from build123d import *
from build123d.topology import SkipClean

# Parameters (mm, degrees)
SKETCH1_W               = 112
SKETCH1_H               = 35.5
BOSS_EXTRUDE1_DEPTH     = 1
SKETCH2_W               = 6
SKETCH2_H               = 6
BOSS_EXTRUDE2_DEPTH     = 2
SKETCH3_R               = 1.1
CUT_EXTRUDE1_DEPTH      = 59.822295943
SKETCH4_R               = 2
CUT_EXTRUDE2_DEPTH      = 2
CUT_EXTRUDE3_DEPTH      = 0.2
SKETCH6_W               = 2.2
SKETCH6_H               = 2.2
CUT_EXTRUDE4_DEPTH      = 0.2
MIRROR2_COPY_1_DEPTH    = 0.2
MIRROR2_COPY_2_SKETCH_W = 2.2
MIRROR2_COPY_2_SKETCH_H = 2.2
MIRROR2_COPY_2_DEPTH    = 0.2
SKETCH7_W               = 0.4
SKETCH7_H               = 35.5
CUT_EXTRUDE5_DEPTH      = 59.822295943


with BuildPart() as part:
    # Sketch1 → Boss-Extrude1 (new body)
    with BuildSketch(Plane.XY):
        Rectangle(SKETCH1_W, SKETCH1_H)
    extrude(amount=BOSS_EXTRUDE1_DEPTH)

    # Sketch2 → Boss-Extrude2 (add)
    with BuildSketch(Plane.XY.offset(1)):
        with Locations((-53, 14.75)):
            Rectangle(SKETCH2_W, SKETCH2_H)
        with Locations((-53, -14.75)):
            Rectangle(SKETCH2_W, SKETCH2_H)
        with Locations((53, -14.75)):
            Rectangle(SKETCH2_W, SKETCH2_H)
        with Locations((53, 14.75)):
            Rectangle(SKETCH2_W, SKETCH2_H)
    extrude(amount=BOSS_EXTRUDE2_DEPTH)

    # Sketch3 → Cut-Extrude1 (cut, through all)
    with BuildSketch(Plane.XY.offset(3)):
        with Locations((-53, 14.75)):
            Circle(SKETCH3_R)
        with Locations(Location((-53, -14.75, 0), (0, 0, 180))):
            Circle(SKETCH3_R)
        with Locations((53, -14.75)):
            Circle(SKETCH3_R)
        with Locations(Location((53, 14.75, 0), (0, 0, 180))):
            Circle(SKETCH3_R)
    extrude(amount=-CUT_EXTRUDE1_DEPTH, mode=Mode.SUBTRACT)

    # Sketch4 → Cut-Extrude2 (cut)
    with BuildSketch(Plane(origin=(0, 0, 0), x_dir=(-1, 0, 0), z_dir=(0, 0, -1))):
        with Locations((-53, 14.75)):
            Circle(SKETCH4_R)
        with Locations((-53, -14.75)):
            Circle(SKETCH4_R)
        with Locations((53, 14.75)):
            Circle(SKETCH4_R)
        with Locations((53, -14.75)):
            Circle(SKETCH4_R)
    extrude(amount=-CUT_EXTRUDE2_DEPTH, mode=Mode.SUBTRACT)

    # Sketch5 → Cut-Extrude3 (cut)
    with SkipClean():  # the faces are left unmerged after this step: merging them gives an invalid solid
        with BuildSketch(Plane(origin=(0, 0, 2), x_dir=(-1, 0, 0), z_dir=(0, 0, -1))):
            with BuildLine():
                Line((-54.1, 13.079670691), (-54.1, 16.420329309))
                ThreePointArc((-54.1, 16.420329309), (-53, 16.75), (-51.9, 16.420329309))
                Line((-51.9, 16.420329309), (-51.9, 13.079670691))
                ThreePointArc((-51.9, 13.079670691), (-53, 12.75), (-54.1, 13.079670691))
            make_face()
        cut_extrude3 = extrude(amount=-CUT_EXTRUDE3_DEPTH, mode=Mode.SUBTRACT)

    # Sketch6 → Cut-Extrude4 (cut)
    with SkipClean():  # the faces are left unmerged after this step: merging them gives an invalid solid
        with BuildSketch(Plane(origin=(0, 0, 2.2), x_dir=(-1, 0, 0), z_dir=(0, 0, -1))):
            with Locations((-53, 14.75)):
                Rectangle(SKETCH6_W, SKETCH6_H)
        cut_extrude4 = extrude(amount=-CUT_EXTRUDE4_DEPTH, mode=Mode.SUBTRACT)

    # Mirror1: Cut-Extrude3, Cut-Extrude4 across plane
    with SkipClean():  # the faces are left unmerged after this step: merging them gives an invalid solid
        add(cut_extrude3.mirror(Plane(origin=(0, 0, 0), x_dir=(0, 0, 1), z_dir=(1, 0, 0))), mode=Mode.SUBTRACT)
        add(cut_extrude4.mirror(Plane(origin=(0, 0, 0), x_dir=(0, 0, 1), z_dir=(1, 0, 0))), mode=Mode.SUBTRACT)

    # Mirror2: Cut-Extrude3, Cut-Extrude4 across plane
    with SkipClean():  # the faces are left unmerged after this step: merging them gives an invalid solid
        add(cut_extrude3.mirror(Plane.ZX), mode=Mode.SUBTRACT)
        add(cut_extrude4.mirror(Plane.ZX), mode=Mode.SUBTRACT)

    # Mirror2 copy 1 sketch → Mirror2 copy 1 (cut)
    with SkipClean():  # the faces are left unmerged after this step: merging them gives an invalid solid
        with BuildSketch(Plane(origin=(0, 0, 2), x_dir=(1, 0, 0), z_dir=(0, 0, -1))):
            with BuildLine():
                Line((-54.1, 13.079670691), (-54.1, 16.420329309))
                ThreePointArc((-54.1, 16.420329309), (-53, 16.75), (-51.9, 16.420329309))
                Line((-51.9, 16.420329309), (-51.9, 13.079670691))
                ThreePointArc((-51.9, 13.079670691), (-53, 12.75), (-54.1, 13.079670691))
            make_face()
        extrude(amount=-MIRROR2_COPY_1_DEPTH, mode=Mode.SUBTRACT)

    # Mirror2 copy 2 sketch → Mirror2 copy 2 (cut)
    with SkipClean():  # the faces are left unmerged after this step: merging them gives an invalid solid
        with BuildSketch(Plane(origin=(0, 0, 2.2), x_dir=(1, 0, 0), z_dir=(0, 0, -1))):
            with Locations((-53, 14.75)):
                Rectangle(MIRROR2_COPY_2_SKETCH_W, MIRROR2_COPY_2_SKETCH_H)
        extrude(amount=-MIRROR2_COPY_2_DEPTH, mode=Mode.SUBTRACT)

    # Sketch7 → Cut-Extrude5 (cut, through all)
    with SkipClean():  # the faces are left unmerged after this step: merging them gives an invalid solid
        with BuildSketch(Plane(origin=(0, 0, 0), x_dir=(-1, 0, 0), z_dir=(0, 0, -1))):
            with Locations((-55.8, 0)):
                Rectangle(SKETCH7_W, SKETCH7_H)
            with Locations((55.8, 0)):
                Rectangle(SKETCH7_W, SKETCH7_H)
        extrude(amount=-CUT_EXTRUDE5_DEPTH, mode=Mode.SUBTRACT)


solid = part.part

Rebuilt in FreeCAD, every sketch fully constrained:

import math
import FreeCAD as App
import Part
import Sketcher
from FreeCAD import Vector


def add_polygon(sketch, points):
    """Adds a closed chain of lines whose ends are joined by coincident constraints."""
    first, n = sketch.GeometryCount, len(points)
    for a, b in zip(points, points[1:] + points[:1]):
        sketch.addGeometry(Part.LineSegment(App.Vector(*a, 0), App.Vector(*b, 0)), False)
    for i in range(n):
        sketch.addConstraint(Sketcher.Constraint("Coincident", first + i, 2, first + (i + 1) % n, 1))

doc = App.newDocument("Part")
body = doc.addObject("PartDesign::Body", "Body")

# Sketch on XY plane
sketch1 = body.newObject("Sketcher::SketchObject", "Sketch")
sketch1.AttachmentSupport = (doc.getObject("XY_Plane"), [""])
sketch1.MapMode = "FlatFace"
add_polygon(sketch1, [(-56, 18), (-56, -18), (56, -18), (56, 18)])  # lines 0-3
sketch1.addConstraint(Sketcher.Constraint("Vertical", 0))
sketch1.addConstraint(Sketcher.Constraint("Horizontal", 1))
sketch1.addConstraint(Sketcher.Constraint("Vertical", 2))
sketch1.addConstraint(Sketcher.Constraint("Horizontal", 3))
sketch1.addConstraint(Sketcher.Constraint("Symmetric", 0, 2, 2, 2, -1, 1))
sketch1.addConstraint(Sketcher.Constraint("DistanceX", 1, 1, 1, 2, 112.0))
sketch1.addConstraint(Sketcher.Constraint("DistanceY", 0, 2, 0, 1, 35.5))
pad1 = body.newObject("PartDesign::Pad", "Pad")
pad1.Profile = sketch1
pad1.Length = 1

# Sketch on XY plane
sketch2 = body.newObject("Sketcher::SketchObject", "Sketch001")
sketch2.AttachmentSupport = (doc.getObject("XY_Plane"), [""])
sketch2.MapMode = "FlatFace"
sketch2.AttachmentOffset = App.Placement(Vector(0, 0, 1), App.Rotation())
add_polygon(sketch2, [(-56, 18), (-56, 12), (-50, 12), (-50, 18)])  # lines 0-3
add_polygon(sketch2, [(-56, -12), (-56, -18), (-50, -18), (-50, -12)])  # lines 4-7
add_polygon(sketch2, [(50, -12), (50, -18), (56, -18), (56, -12)])  # lines 8-11
add_polygon(sketch2, [(50, 18), (50, 12), (56, 12), (56, 18)])  # lines 12-15
sketch2.addConstraint(Sketcher.Constraint("Vertical", 0))
sketch2.addConstraint(Sketcher.Constraint("Horizontal", 1))
sketch2.addConstraint(Sketcher.Constraint("Vertical", 2))
sketch2.addConstraint(Sketcher.Constraint("Horizontal", 3))
sketch2.addConstraint(Sketcher.Constraint("Vertical", 4))
sketch2.addConstraint(Sketcher.Constraint("Horizontal", 5))
sketch2.addConstraint(Sketcher.Constraint("Vertical", 6))
sketch2.addConstraint(Sketcher.Constraint("Horizontal", 7))
sketch2.addConstraint(Sketcher.Constraint("Vertical", 8))
sketch2.addConstraint(Sketcher.Constraint("Horizontal", 9))
sketch2.addConstraint(Sketcher.Constraint("Vertical", 10))
sketch2.addConstraint(Sketcher.Constraint("Horizontal", 11))
sketch2.addConstraint(Sketcher.Constraint("Vertical", 12))
sketch2.addConstraint(Sketcher.Constraint("Horizontal", 13))
sketch2.addConstraint(Sketcher.Constraint("Vertical", 14))
sketch2.addConstraint(Sketcher.Constraint("Horizontal", 15))
sketch2.addConstraint(Sketcher.Constraint("Symmetric", 2, 2, 8, 2, -1, 1))
sketch2.addConstraint(Sketcher.Constraint("Symmetric", 0, 2, 10, 2, -1, 1))
sketch2.addConstraint(Sketcher.Constraint("Symmetric", 6, 2, 12, 2, -1, 1))
sketch2.addConstraint(Sketcher.Constraint("Symmetric", 4, 2, 14, 2, -1, 1))
sketch2.addConstraint(Sketcher.Constraint("Symmetric", 5, 2, 8, 2, -2))
sketch2.addConstraint(Sketcher.Constraint("Symmetric", 7, 2, 10, 2, -2))
sketch2.addConstraint(Sketcher.Constraint("Equal", 15, 0))
sketch2.addConstraint(Sketcher.Constraint("DistanceX", 1, 1, 1, 2, 6.0))
sketch2.addConstraint(Sketcher.Constraint("DistanceX", 0, 2, -1, 1, 56.0))
sketch2.addConstraint(Sketcher.Constraint("DistanceY", 4, 2, 0, 2, 29.5))
pad2 = body.newObject("PartDesign::Pad", "Pad001")
pad2.Profile = sketch2
pad2.Length = 2

# Sketch on XY plane
sketch3 = body.newObject("Sketcher::SketchObject", "Sketch002")
sketch3.AttachmentSupport = (doc.getObject("XY_Plane"), [""])
sketch3.MapMode = "FlatFace"
sketch3.AttachmentOffset = App.Placement(Vector(0, 0, 3), App.Rotation())
sketch3.addGeometry(Part.Circle(Vector(-53, 14.8, 0), Vector(0, 0, 1), 1.1), False)
sketch3.addGeometry(Part.Circle(Vector(-53, -14.8, 0), Vector(0, 0, 1), 1.1), False)
sketch3.addGeometry(Part.Circle(Vector(53, -14.8, 0), Vector(0, 0, 1), 1.1), False)
sketch3.addGeometry(Part.Circle(Vector(53, 14.8, 0), Vector(0, 0, 1), 1.1), False)
sketch3.addConstraint(Sketcher.Constraint("Equal", 0, 1))
sketch3.addConstraint(Sketcher.Constraint("Equal", 1, 2))
sketch3.addConstraint(Sketcher.Constraint("Equal", 2, 3))
sketch3.addConstraint(Sketcher.Constraint("Symmetric", 0, 3, 2, 3, -1, 1))
sketch3.addConstraint(Sketcher.Constraint("Symmetric", 1, 3, 3, 3, -1, 1))
sketch3.addConstraint(Sketcher.Constraint("Symmetric", 1, 3, 2, 3, -2))
sketch3.addConstraint(Sketcher.Constraint("Diameter", 0, 2.2))
sketch3.addConstraint(Sketcher.Constraint("DistanceX", 0, 3, -1, 1, 53.0))
sketch3.addConstraint(Sketcher.Constraint("DistanceY", 1, 3, 0, 3, 29.5))
pocket1 = body.newObject("PartDesign::Pocket", "Pocket")
pocket1.Profile = sketch3
pocket1.Type = "ThroughAll"

# Sketch on XY plane
sketch4 = body.newObject("Sketcher::SketchObject", "Sketch003")
sketch4.AttachmentSupport = (doc.getObject("XY_Plane"), [""])
sketch4.MapMode = "FlatFace"
sketch4.addGeometry(Part.Circle(Vector(53, 14.8, 0), Vector(0, 0, 1), 2), False)
sketch4.addGeometry(Part.Circle(Vector(53, -14.8, 0), Vector(0, 0, 1), 2), False)
sketch4.addGeometry(Part.Circle(Vector(-53, 14.8, 0), Vector(0, 0, 1), 2), False)
sketch4.addGeometry(Part.Circle(Vector(-53, -14.8, 0), Vector(0, 0, 1), 2), False)
sketch4.addConstraint(Sketcher.Constraint("Equal", 0, 1))
sketch4.addConstraint(Sketcher.Constraint("Equal", 1, 2))
sketch4.addConstraint(Sketcher.Constraint("Equal", 2, 3))
sketch4.addConstraint(Sketcher.Constraint("Symmetric", 1, 3, 2, 3, -1, 1))
sketch4.addConstraint(Sketcher.Constraint("Symmetric", 0, 3, 3, 3, -1, 1))
sketch4.addConstraint(Sketcher.Constraint("Symmetric", 0, 3, 2, 3, -2))
sketch4.addConstraint(Sketcher.Constraint("Diameter", 0, 4.0))
sketch4.addConstraint(Sketcher.Constraint("DistanceX", -1, 1, 0, 3, 53.0))
sketch4.addConstraint(Sketcher.Constraint("DistanceY", 1, 3, 0, 3, 29.5))
pocket2 = body.newObject("PartDesign::Pocket", "Pocket001")
pocket2.Profile = sketch4
pocket2.Length = 2
pocket2.Reversed = True

# Sketch on XY plane
sketch5 = body.newObject("Sketcher::SketchObject", "Sketch004")
sketch5.AttachmentSupport = (doc.getObject("XY_Plane"), [""])
sketch5.MapMode = "FlatFace"
sketch5.AttachmentOffset = App.Placement(Vector(0, 0, 2), App.Rotation())
sketch5.addGeometry(Part.LineSegment(Vector(54.1, 16.4, 0), Vector(54.1, 13.1, 0)), False)
sketch5.addGeometry(Part.ArcOfCircle(Part.Circle(Vector(53, 14.8, 0), Vector(0, 0, 1), 2), math.radians(-123), math.radians(-57)), False)
sketch5.addGeometry(Part.LineSegment(Vector(51.9, 13.1, 0), Vector(51.9, 16.4, 0)), False)
sketch5.addGeometry(Part.ArcOfCircle(Part.Circle(Vector(53, 14.7, 0), Vector(0, 0, 1), 2), math.radians(57), math.radians(123)), False)
sketch5.addConstraint(Sketcher.Constraint("Coincident", 0, 2, 1, 2))
sketch5.addConstraint(Sketcher.Constraint("Coincident", 1, 1, 2, 1))
sketch5.addConstraint(Sketcher.Constraint("Coincident", 2, 2, 3, 2))
sketch5.addConstraint(Sketcher.Constraint("Coincident", 3, 1, 0, 1))
sketch5.addConstraint(Sketcher.Constraint("Vertical", 0))
sketch5.addConstraint(Sketcher.Constraint("Vertical", 2))
sketch5.addConstraint(Sketcher.Constraint("Coincident", 3, 3, 1, 3))
sketch5.addConstraint(Sketcher.Constraint("Equal", 1, 3))
sketch5.addConstraint(Sketcher.Constraint("Horizontal", 0, 2, 1, 1))
sketch5.addConstraint(Sketcher.Constraint("Radius", 1, 2.0))
sketch5.addConstraint(Sketcher.Constraint("DistanceX", -1, 1, 1, 3, 53.0))
sketch5.addConstraint(Sketcher.Constraint("DistanceX", -1, 1, 0, 2, 54.1))
sketch5.addConstraint(Sketcher.Constraint("DistanceY", -1, 1, 1, 3, 14.75))
pocket3 = body.newObject("PartDesign::Pocket", "Pocket002")
pocket3.Profile = sketch5
pocket3.Length = 0.2
pocket3.Reversed = True

# Sketch on XY plane
sketch6 = body.newObject("Sketcher::SketchObject", "Sketch005")
sketch6.AttachmentSupport = (doc.getObject("XY_Plane"), [""])
sketch6.MapMode = "FlatFace"
sketch6.AttachmentOffset = App.Placement(Vector(0, 0, 2.2), App.Rotation())
add_polygon(sketch6, [(54.1, 15.8), (54.1, 13.7), (51.9, 13.7), (51.9, 15.8)])  # lines 0-3
sketch6.addConstraint(Sketcher.Constraint("Vertical", 0))
sketch6.addConstraint(Sketcher.Constraint("Horizontal", 1))
sketch6.addConstraint(Sketcher.Constraint("Vertical", 2))
sketch6.addConstraint(Sketcher.Constraint("Horizontal", 3))
sketch6.addConstraint(Sketcher.Constraint("Equal", 3, 0))
sketch6.addConstraint(Sketcher.Constraint("DistanceX", 1, 2, 1, 1, 2.2))
sketch6.addConstraint(Sketcher.Constraint("DistanceX", -1, 1, 0, 2, 54.1))
sketch6.addConstraint(Sketcher.Constraint("DistanceY", -1, 1, 0, 2, 13.65))
pocket4 = body.newObject("PartDesign::Pocket", "Pocket003")
pocket4.Profile = sketch6
pocket4.Length = 0.2
pocket4.Reversed = True
doc.recompute()

mirrored = body.newObject("PartDesign::Mirrored", "Mirrored")
mirrored.Originals = [pocket3, pocket4]
mirrored.MirrorPlane = (doc.getObject("YZ_Plane"), [""])
body.Tip = mirrored
doc.recompute()

mirrored2 = body.newObject("PartDesign::Mirrored", "Mirrored001")
mirrored2.Originals = [pocket3, pocket4]
mirrored2.MirrorPlane = (doc.getObject("XZ_Plane"), [""])
body.Tip = mirrored2

# Sketch on XY plane
sketch7 = body.newObject("Sketcher::SketchObject", "Sketch006")
sketch7.AttachmentSupport = (doc.getObject("XY_Plane"), [""])
sketch7.MapMode = "FlatFace"
sketch7.AttachmentOffset = App.Placement(Vector(0, 0, 2), App.Rotation())
sketch7.addGeometry(Part.LineSegment(Vector(-54.1, -16.4, 0), Vector(-54.1, -13.1, 0)), False)
sketch7.addGeometry(Part.ArcOfCircle(Part.Circle(Vector(-53, -14.8, 0), Vector(0, 0, 1), 2), math.radians(57), math.radians(123)), False)
sketch7.addGeometry(Part.LineSegment(Vector(-51.9, -13.1, 0), Vector(-51.9, -16.4, 0)), False)
sketch7.addGeometry(Part.ArcOfCircle(Part.Circle(Vector(-53, -14.7, 0), Vector(0, 0, 1), 2), math.radians(-123), math.radians(-57)), False)
sketch7.addConstraint(Sketcher.Constraint("Coincident", 0, 2, 1, 2))
sketch7.addConstraint(Sketcher.Constraint("Coincident", 1, 1, 2, 1))
sketch7.addConstraint(Sketcher.Constraint("Coincident", 2, 2, 3, 2))
sketch7.addConstraint(Sketcher.Constraint("Coincident", 3, 1, 0, 1))
sketch7.addConstraint(Sketcher.Constraint("Vertical", 0))
sketch7.addConstraint(Sketcher.Constraint("Vertical", 2))
sketch7.addConstraint(Sketcher.Constraint("Coincident", 3, 3, 1, 3))
sketch7.addConstraint(Sketcher.Constraint("Equal", 1, 3))
sketch7.addConstraint(Sketcher.Constraint("Horizontal", 0, 2, 1, 1))
sketch7.addConstraint(Sketcher.Constraint("Radius", 1, 2.0))
sketch7.addConstraint(Sketcher.Constraint("DistanceX", 1, 3, -1, 1, 53.0))
sketch7.addConstraint(Sketcher.Constraint("DistanceX", 0, 2, -1, 1, 54.1))
sketch7.addConstraint(Sketcher.Constraint("DistanceY", 1, 3, -1, 1, 14.75))
pocket5 = body.newObject("PartDesign::Pocket", "Pocket004")
pocket5.Profile = sketch7
pocket5.Length = 0.2
pocket5.Reversed = True

# Sketch on XY plane
sketch8 = body.newObject("Sketcher::SketchObject", "Sketch007")
sketch8.AttachmentSupport = (doc.getObject("XY_Plane"), [""])
sketch8.MapMode = "FlatFace"
sketch8.AttachmentOffset = App.Placement(Vector(0, 0, 2.2), App.Rotation())
add_polygon(sketch8, [(-54.1, -15.8), (-54.1, -13.7), (-51.9, -13.7), (-51.9, -15.8)])  # lines 0-3
sketch8.addConstraint(Sketcher.Constraint("Vertical", 0))
sketch8.addConstraint(Sketcher.Constraint("Horizontal", 1))
sketch8.addConstraint(Sketcher.Constraint("Vertical", 2))
sketch8.addConstraint(Sketcher.Constraint("Horizontal", 3))
sketch8.addConstraint(Sketcher.Constraint("Equal", 3, 0))
sketch8.addConstraint(Sketcher.Constraint("DistanceX", 1, 1, 1, 2, 2.2))
sketch8.addConstraint(Sketcher.Constraint("DistanceX", 0, 2, -1, 1, 54.1))
sketch8.addConstraint(Sketcher.Constraint("DistanceY", 0, 2, -1, 1, 13.65))
pocket6 = body.newObject("PartDesign::Pocket", "Pocket005")
pocket6.Profile = sketch8
pocket6.Length = 0.2
pocket6.Reversed = True

# Sketch on XY plane
sketch9 = body.newObject("Sketcher::SketchObject", "Sketch008")
sketch9.AttachmentSupport = (doc.getObject("XY_Plane"), [""])
sketch9.MapMode = "FlatFace"
add_polygon(sketch9, [(56, 17.75), (56, -17.75), (55.6, -17.75), (55.6, 17.75)])  # lines 0-3
add_polygon(sketch9, [(-55.6, 17.75), (-55.6, -17.75), (-56, -17.75), (-56, 17.75)])  # lines 4-7
sketch9.addConstraint(Sketcher.Constraint("Vertical", 0))
sketch9.addConstraint(Sketcher.Constraint("Horizontal", 1))
sketch9.addConstraint(Sketcher.Constraint("Vertical", 2))
sketch9.addConstraint(Sketcher.Constraint("Horizontal", 3))
sketch9.addConstraint(Sketcher.Constraint("Vertical", 4))
sketch9.addConstraint(Sketcher.Constraint("Horizontal", 5))
sketch9.addConstraint(Sketcher.Constraint("Vertical", 6))
sketch9.addConstraint(Sketcher.Constraint("Horizontal", 7))
sketch9.addConstraint(Sketcher.Constraint("Symmetric", 2, 2, 4, 2, -1, 1))
sketch9.addConstraint(Sketcher.Constraint("Symmetric", 0, 2, 6, 2, -1, 1))
sketch9.addConstraint(Sketcher.Constraint("Horizontal", 1, 2, 4, 2))
sketch9.addConstraint(Sketcher.Constraint("DistanceX", 1, 2, 1, 1, 0.4))
sketch9.addConstraint(Sketcher.Constraint("DistanceY", 0, 2, 0, 1, 35.5))
sketch9.addConstraint(Sketcher.Constraint("DistanceX", -1, 1, 0, 2, 56.0))
pocket7 = body.newObject("PartDesign::Pocket", "Pocket006")
pocket7.Profile = sketch9
pocket7.Type = "ThroughAll"
pocket7.Reversed = True

doc.recompute()
